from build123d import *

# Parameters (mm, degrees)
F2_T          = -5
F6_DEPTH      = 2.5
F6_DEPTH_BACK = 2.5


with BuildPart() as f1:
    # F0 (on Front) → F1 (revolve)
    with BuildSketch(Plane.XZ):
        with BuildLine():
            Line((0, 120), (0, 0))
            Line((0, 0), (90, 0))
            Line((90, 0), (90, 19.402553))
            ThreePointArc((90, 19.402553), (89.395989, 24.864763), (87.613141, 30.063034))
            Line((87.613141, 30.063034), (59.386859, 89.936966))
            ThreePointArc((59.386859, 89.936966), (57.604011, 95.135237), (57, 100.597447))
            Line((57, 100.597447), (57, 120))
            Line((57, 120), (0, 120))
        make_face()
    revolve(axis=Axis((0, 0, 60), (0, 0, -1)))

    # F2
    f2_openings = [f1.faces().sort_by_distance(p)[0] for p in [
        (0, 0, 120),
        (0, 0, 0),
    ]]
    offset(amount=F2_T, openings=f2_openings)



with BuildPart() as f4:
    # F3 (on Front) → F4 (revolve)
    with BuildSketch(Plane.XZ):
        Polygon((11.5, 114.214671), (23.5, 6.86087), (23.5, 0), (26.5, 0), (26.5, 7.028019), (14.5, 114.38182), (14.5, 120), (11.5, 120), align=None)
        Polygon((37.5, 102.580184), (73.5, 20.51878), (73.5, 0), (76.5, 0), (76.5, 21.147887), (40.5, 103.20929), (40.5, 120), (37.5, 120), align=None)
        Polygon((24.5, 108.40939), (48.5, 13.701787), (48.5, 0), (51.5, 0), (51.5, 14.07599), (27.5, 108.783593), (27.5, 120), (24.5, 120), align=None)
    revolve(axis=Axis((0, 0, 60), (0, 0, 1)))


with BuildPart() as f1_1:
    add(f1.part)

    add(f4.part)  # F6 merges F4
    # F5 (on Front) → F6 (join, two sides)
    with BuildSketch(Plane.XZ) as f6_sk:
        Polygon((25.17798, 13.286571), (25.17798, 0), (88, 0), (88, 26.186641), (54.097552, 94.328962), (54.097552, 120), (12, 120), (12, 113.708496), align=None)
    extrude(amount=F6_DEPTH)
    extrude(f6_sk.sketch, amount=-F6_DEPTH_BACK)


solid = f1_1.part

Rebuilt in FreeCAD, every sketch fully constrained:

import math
import FreeCAD as App
import Part
import Sketcher
from FreeCAD import Vector
Q = App.Units.Quantity


def faces_at(feature, points):
    """Names of the faces that lie closest to the given points."""
    faces = feature.Shape.Faces
    near = lambda p: min(range(len(faces)), key=lambda i: faces[i].distToShape(Part.Vertex(*p))[0])
    return sorted({f"Face{near(p) + 1}" for p in points})


def add_polygon(sketch, points):
    """Adds a closed chain of lines whose ends are joined by coincident constraints."""
    first, n = sketch.GeometryCount, len(points)
    for a, b in zip(points, points[1:] + points[:1]):
        sketch.addGeometry(Part.LineSegment(App.Vector(*a, 0), App.Vector(*b, 0)), False)
    for i in range(n):
        sketch.addConstraint(Sketcher.Constraint("Coincident", first + i, 2, first + (i + 1) % n, 1))

doc = App.newDocument("Part")
body = doc.addObject("PartDesign::Body", "Body")

# Sketch on XZ plane
sketch1 = doc.addObject("Sketcher::SketchObject", "Sketch")
body.addObject(sketch1)
sketch1.AttachmentSupport = (doc.XZ_Plane, [""])
sketch1.MapMode = "FlatFace"
sketch1.addGeometry([
    Part.LineSegment(Vector(0, 120, 0), Vector(0, 0, 0)),  # 0
    Part.LineSegment(Vector(0, 0, 0), Vector(90, 0, 0)),  # 1
    Part.LineSegment(Vector(90, 0, 0), Vector(90, 19, 0)),  # 2
    Part.ArcOfCircle(Part.Circle(Vector(65, 19, 0), Vector(0, 0, 1), 25), math.radians(0), math.radians(25)),  # 3
    Part.LineSegment(Vector(88, 30, 0), Vector(59, 90, 0)),  # 4
    Part.ArcOfCircle(Part.Circle(Vector(82, 101, 0), Vector(0, 0, 1), 25), math.radians(180), math.radians(205)),  # 5
    Part.LineSegment(Vector(57, 101, 0), Vector(57, 120, 0)),  # 6
    Part.LineSegment(Vector(57, 120, 0), Vector(0, 120, 0)),  # 7
], False)
sketch1.addConstraint([
    Sketcher.Constraint("Coincident", 0, 2, 1, 1),
    Sketcher.Constraint("Coincident", 1, 2, 2, 1),
    Sketcher.Constraint("Tangent", 2, 2, 3, 1),
    Sketcher.Constraint("Tangent", 3, 2, 4, 1),
    Sketcher.Constraint("Tangent", 4, 2, 5, 2),
    Sketcher.Constraint("Tangent", 5, 1, 6, 1),
    Sketcher.Constraint("Coincident", 6, 2, 7, 1),
    Sketcher.Constraint("Coincident", 7, 2, 0, 1),
    Sketcher.Constraint("Vertical", 0),
    Sketcher.Constraint("Horizontal", 1),
    Sketcher.Constraint("Vertical", 2),
    Sketcher.Constraint("Vertical", 6),
    Sketcher.Constraint("Horizontal", 7),
    Sketcher.Constraint("Coincident", 0, 2, -1, 1),
    Sketcher.Constraint("Equal", 3, 5),
    Sketcher.Constraint("Equal", 2, 6),
    Sketcher.Constraint("DistanceX", 1, 1, 1, 2, Q("90 mm")),
    Sketcher.Constraint("DistanceX", 7, 2, 7, 1, Q("57 mm")),
    Sketcher.Constraint("DistanceY", 0, 2, 0, 1, Q("120 mm")),
    Sketcher.Constraint("Radius", 3, Q("24.999986 mm")),
    Sketcher.Constraint("DistanceY", 2, 1, 2, 2, Q("19.402553 mm")),
])
revolution = doc.addObject("PartDesign::Revolution", "Revolution")
body.addObject(revolution)
revolution.Profile = sketch1
revolution.ReferenceAxis = (sketch1, ["V_Axis"])
revolution.Angle = 360
doc.recompute()

thickness = doc.addObject("PartDesign::Thickness", "Thickness")
body.addObject(thickness)
thickness.Base = (revolution, faces_at(revolution, [(0, 0, 120), (0, 0, 0)]))
thickness.Value = 5
thickness.Reversed = True
thickness.Join = "Arc"
body2 = doc.addObject("PartDesign::Body", "Body001")
body2.AllowCompound = True

# Sketch on XZ plane
sketch2 = doc.addObject("Sketcher::SketchObject", "Sketch001")
body2.addObject(sketch2)
sketch2.AttachmentSupport = (doc.getObject("XZ_Plane001"), [""])
sketch2.MapMode = "FlatFace"
add_polygon(sketch2, [(11.5, 114.2), (23.5, 6.9), (23.5, 0), (26.5, 0), (26.5, 7), (14.5, 114.4), (14.5, 120), (11.5, 120)])  # lines 0-7
add_polygon(sketch2, [(37.5, 102.6), (73.5, 20.5), (73.5, 0), (76.5, 0), (76.5, 21.1), (40.5, 103.2), (40.5, 120), (37.5, 120)])  # lines 8-15
add_polygon(sketch2, [(24.5, 108.4), (48.5, 13.7), (48.5, 0), (51.5, 0), (51.5, 14.1), (27.5, 108.8), (27.5, 120), (24.5, 120)])  # lines 16-23
sketch2.addConstraint([
    Sketcher.Constraint("Vertical", 1),
    Sketcher.Constraint("Horizontal", 2),
    Sketcher.Constraint("Vertical", 3),
    Sketcher.Constraint("Vertical", 5),
    Sketcher.Constraint("Horizontal", 6),
    Sketcher.Constraint("Vertical", 7),
    Sketcher.Constraint("Vertical", 9),
    Sketcher.Constraint("Horizontal", 10),
    Sketcher.Constraint("Vertical", 11),
    Sketcher.Constraint("Vertical", 13),
    Sketcher.Constraint("Horizontal", 14),
    Sketcher.Constraint("Vertical", 15),
    Sketcher.Constraint("Vertical", 17),
    Sketcher.Constraint("Horizontal", 18),
    Sketcher.Constraint("Vertical", 19),
    Sketcher.Constraint("Vertical", 21),
    Sketcher.Constraint("Horizontal", 22),
    Sketcher.Constraint("Vertical", 23),
    Sketcher.Constraint("PointOnObject", 1, 2, -1),
    Sketcher.Constraint("PointOnObject", 9, 2, -1),
    Sketcher.Constraint("PointOnObject", 17, 2, -1),
    Sketcher.Constraint("Parallel", 0, 4),
    Sketcher.Constraint("Parallel", 8, 12),
    Sketcher.Constraint("Parallel", 16, 20),
    Sketcher.Constraint("Horizontal", 6, 2, 13, 2),
    Sketcher.Constraint("Horizontal", 14, 2, 21, 2),
    Sketcher.Constraint("Equal", 2, 6),
    Sketcher.Constraint("Equal", 6, 10),
    Sketcher.Constraint("Equal", 10, 14),
    Sketcher.Constraint("Equal", 14, 18),
    Sketcher.Constraint("Equal", 18, 22),
    Sketcher.Constraint("DistanceX", 2, 1, 2, 2, Q("3 mm")),
    Sketcher.Constraint("DistanceY", -1, 1, 5, 2, Q("120 mm")),
    Sketcher.Constraint("DistanceX", 4, 2, 0, 2, Q("9 mm")),
    Sketcher.Constraint("DistanceX", 3, 2, 8, 2, Q("47 mm")),
    Sketcher.Constraint("DistanceX", 4, 2, 12, 2, Q("26 mm")),
    Sketcher.Constraint("DistanceX", 3, 2, 16, 2, Q("22 mm")),
    Sketcher.Constraint("DistanceX", 20, 2, 15, 2, Q("10 mm")),
    Sketcher.Constraint("DistanceX", -1, 1, 0, 2, Q("23.5 mm")),
    Sketcher.Constraint("Distance", 0, Q("108.022399 mm")),
    Sketcher.Constraint("DistanceY", 1, 2, 1, 1, Q("6.86087 mm")),
    Sketcher.Constraint("DistanceY", 3, 1, 3, 2, Q("7.028019 mm")),
    Sketcher.Constraint("DistanceY", 9, 2, 9, 1, Q("20.51878 mm")),
    Sketcher.Constraint("DistanceY", 13, 1, 13, 2, Q("16.79071 mm")),
    Sketcher.Constraint("DistanceY", 19, 1, 19, 2, Q("14.07599 mm")),
    Sketcher.Constraint("DistanceY", 23, 2, 23, 1, Q("11.59061 mm")),
    Sketcher.Constraint("Distance", 8, Q("89.61068 mm")),
    Sketcher.Constraint("Distance", 16, Q("97.701229 mm")),
])
revolution2 = doc.addObject("PartDesign::Revolution", "Revolution001")
body2.addObject(revolution2)
revolution2.Profile = sketch2
revolution2.ReferenceAxis = (sketch2, ["V_Axis"])
revolution2.Angle = 360
body.AllowCompound = True
doc.recompute()

boolean = doc.addObject("PartDesign::Boolean", "Boolean")
body.addObject(boolean)
boolean.Type = "Fuse"
boolean.addObjects([body2])

# Sketch on XZ plane
sketch3 = doc.addObject("Sketcher::SketchObject", "Sketch002")
body.addObject(sketch3)
sketch3.AttachmentSupport = (doc.XZ_Plane, [""])
sketch3.MapMode = "FlatFace"
add_polygon(sketch3, [(25, 13), (25, 0), (88, 0), (88, 26), (54, 94), (54, 120), (12, 120), (12, 114)])  # lines 0-7
sketch3.addConstraint([
    Sketcher.Constraint("Vertical", 0),
    Sketcher.Constraint("Horizontal", 1),
    Sketcher.Constraint("Vertical", 2),
    Sketcher.Constraint("Vertical", 4),
    Sketcher.Constraint("Horizontal", 5),
    Sketcher.Constraint("Vertical", 6),
    Sketcher.Constraint("PointOnObject", 0, 2, -1),
    Sketcher.Constraint("DistanceX", -1, 1, 1, 2, Q("88 mm")),
    Sketcher.Constraint("DistanceY", -1, 1, 4, 2, Q("120 mm")),
    Sketcher.Constraint("DistanceX", -1, 1, 5, 2, Q("12 mm")),
    Sketcher.Constraint("DistanceX", 1, 1, 1, 2, Q("62.82202 mm")),
    Sketcher.Constraint("DistanceY", 0, 2, 0, 1, Q("13.286571 mm")),
    Sketcher.Constraint("DistanceY", 2, 1, 2, 2, Q("26.186641 mm")),
    Sketcher.Constraint("Distance", 3, Q("76.11013 mm")),
    Sketcher.Constraint("Distance", 7, Q("101.282882 mm")),
    Sketcher.Constraint("DistanceX", 5, 2, 5, 1, Q("42.097552 mm")),
])
pad1 = doc.addObject("PartDesign::Pad", "Pad")
body.addObject(pad1)
pad1.Profile = sketch3
pad1.Type = "TwoLengths"
pad1.Length = 2.5
pad1.Length2 = 2.5

doc.recompute()
